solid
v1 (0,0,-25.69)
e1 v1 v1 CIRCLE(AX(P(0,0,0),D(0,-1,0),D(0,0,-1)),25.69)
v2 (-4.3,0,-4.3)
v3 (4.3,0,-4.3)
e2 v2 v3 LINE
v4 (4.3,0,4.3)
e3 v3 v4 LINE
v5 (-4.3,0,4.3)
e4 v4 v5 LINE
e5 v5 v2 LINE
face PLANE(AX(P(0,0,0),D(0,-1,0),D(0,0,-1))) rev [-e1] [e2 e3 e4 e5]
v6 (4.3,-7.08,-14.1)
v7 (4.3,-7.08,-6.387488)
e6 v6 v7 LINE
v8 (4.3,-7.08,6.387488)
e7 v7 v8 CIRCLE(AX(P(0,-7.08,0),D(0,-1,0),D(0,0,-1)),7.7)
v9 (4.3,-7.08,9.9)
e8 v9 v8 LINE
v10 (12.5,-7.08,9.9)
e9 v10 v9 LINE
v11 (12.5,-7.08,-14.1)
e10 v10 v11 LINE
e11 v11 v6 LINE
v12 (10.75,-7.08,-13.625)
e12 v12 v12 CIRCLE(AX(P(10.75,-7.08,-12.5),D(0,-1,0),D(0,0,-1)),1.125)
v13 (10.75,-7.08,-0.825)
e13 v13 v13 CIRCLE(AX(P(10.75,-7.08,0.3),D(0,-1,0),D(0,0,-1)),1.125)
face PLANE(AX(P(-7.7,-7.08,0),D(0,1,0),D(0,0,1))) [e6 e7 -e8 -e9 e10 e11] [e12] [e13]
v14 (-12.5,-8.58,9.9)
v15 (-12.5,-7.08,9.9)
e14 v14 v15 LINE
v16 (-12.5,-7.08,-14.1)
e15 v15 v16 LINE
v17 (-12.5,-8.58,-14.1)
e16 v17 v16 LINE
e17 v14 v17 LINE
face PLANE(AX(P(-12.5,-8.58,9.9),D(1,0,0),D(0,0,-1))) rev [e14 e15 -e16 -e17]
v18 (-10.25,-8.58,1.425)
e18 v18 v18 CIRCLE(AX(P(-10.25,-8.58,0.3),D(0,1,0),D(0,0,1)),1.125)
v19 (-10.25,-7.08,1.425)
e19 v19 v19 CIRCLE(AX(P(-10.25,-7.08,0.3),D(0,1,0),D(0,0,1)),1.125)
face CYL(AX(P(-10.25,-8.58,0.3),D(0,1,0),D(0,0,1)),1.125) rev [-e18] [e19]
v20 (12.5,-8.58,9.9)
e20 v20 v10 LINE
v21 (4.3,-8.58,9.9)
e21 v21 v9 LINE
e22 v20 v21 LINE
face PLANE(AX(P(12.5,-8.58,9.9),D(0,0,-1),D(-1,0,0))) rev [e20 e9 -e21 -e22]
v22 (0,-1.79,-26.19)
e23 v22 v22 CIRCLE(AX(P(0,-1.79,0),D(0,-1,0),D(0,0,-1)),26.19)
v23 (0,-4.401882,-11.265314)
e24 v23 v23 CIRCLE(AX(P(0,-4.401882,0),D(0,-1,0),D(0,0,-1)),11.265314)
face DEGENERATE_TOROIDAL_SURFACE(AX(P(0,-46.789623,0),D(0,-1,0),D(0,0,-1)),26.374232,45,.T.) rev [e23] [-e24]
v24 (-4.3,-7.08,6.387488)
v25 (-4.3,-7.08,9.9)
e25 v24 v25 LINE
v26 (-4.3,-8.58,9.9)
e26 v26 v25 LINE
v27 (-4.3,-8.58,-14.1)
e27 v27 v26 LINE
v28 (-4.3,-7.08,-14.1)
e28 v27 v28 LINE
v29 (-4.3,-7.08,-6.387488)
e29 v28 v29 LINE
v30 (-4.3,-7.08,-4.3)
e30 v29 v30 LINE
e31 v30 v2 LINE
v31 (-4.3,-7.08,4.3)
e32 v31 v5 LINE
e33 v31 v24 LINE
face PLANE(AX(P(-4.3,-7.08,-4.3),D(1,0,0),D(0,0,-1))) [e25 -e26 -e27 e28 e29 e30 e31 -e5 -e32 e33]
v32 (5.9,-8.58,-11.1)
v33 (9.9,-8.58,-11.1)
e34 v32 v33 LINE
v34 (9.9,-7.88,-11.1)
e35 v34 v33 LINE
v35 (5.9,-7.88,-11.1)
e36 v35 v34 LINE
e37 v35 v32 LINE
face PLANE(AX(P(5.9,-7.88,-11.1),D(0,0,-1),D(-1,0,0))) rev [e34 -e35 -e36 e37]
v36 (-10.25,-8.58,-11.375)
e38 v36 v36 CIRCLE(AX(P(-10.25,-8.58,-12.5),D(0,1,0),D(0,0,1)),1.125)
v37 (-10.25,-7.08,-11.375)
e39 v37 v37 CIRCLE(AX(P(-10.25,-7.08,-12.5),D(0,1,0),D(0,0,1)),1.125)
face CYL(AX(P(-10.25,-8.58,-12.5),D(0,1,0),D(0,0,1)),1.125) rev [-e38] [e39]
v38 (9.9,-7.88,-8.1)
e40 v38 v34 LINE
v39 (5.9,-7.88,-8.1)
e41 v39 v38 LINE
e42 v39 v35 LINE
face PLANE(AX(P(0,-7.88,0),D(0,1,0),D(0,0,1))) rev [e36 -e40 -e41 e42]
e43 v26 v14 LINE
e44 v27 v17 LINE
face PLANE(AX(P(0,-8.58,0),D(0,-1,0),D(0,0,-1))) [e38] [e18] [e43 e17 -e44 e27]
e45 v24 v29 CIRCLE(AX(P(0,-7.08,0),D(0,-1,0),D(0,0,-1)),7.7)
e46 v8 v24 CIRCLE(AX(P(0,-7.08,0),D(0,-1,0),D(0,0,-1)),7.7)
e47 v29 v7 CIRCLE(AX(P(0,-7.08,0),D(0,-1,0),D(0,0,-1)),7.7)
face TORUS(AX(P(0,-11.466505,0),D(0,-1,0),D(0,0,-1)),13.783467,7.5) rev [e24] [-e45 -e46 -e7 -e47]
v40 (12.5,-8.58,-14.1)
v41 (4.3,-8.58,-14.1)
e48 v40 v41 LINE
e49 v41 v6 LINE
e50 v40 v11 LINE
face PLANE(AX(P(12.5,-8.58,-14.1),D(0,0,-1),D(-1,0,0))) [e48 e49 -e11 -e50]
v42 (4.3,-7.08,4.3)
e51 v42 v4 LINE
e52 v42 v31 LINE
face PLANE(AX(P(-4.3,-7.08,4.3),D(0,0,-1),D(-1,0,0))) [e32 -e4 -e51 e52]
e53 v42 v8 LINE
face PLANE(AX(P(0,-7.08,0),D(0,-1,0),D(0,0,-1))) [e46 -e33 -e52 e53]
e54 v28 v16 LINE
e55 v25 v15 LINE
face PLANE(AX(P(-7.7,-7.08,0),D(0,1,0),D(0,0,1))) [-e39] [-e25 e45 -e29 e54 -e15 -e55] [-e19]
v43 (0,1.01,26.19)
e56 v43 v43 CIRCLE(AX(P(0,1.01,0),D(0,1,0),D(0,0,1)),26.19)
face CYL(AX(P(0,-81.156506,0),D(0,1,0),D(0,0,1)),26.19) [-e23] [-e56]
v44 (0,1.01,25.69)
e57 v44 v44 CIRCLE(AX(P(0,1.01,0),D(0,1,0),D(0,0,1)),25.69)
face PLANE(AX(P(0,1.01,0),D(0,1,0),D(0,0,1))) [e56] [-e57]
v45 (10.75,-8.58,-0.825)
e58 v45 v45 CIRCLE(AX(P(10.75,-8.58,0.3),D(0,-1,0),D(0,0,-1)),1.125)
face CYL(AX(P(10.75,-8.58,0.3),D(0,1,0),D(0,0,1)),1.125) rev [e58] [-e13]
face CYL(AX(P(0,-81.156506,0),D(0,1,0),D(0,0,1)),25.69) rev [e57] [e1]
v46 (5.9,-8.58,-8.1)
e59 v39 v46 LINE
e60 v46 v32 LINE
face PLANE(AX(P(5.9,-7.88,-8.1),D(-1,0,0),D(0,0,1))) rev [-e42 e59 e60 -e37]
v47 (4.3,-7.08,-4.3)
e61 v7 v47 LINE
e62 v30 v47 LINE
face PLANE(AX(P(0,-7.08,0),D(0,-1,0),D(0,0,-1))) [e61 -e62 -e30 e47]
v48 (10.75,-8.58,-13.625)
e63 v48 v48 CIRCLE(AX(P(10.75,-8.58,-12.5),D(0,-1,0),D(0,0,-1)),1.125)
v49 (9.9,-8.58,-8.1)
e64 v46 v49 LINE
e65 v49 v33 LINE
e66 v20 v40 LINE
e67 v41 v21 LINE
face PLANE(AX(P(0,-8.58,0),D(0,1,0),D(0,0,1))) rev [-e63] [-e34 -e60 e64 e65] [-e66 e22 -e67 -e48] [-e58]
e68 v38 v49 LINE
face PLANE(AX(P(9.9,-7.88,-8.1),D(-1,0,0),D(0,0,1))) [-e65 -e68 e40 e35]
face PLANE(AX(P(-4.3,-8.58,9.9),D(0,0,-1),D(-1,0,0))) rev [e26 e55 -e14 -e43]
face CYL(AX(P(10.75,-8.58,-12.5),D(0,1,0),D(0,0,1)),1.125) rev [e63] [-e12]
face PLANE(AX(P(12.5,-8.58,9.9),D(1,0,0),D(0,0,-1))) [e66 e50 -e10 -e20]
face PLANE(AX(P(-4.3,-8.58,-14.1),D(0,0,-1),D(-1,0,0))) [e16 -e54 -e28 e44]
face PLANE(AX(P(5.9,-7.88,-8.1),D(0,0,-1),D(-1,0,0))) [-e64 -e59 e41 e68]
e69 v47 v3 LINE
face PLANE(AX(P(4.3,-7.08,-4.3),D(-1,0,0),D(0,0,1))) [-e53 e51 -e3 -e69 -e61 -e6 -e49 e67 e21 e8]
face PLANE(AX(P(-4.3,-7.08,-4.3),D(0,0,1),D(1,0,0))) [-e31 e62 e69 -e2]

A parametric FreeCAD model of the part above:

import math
import FreeCAD as App
import Part
import Sketcher
Q = App.Units.Quantity

doc = App.newDocument("Part")
body = doc.addObject("PartDesign::Body", "Body")

sketch1 = body.newObject("Sketcher::SketchObject", "Sketch")
sketch1.AttachmentSupport = (doc.getObject("XZ_Plane"), [""])
sketch1.MapMode = "FlatFace"
sketch1.addGeometry([
    Part.Circle(App.Vector(0, 0, 0), App.Vector(0, 0, 1), 26),
    Part.LineSegment(App.Vector(4, -4, 0), App.Vector(-4, -4, 0)),
    Part.LineSegment(App.Vector(-4, -4, 0), App.Vector(-4, 4, 0)),
    Part.LineSegment(App.Vector(-4, 4, 0), App.Vector(4, 4, 0)),
    Part.LineSegment(App.Vector(4, 4, 0), App.Vector(4, -4, 0)),
], False)
sketch1.addConstraint([
    Sketcher.Constraint("Coincident", 1, 2, 2, 1),
    Sketcher.Constraint("Coincident", 2, 2, 3, 1),
    Sketcher.Constraint("Coincident", 3, 2, 4, 1),
    Sketcher.Constraint("Coincident", 4, 2, 1, 1),
    Sketcher.Constraint("Horizontal", 1),
    Sketcher.Constraint("Vertical", 2),
    Sketcher.Constraint("Horizontal", 3),
    Sketcher.Constraint("Vertical", 4),
    Sketcher.Constraint("Coincident", 0, 3, -1, 1),
    Sketcher.Constraint("Symmetric", 1, 2, 3, 2, -1, 1),
    Sketcher.Constraint("Equal", 3, 2),
    Sketcher.Constraint("Diameter", 0, Q("51.38 mm")),
    Sketcher.Constraint("DistanceX", 1, 2, 1, 1, Q("8.6 mm")),
])
pad1 = body.newObject("PartDesign::Pad", "Pad")
pad1.Profile = sketch1
pad1.Length = 7.08

sketch2 = body.newObject("Sketcher::SketchObject", "Sketch001")
sketch2.AttachmentSupport = (doc.getObject("XZ_Plane"), [""])
sketch2.MapMode = "FlatFace"
sketch2.AttachmentOffset = App.Placement(App.Vector(0, 0, 7.08), App.Rotation())
sketch2.addGeometry([
    Part.LineSegment(App.Vector(12.5, -14.1, 0), App.Vector(12.5, 9.9, 0)),
    Part.LineSegment(App.Vector(12.5, 9.9, 0), App.Vector(4.3, 9.9, 0)),
    Part.LineSegment(App.Vector(4.3, 9.9, 0), App.Vector(4.3, -14.1, 0)),
    Part.LineSegment(App.Vector(4.3, -14.1, 0), App.Vector(12.5, -14.1, 0)),
    Part.Circle(App.Vector(10.8, 0.3, 0), App.Vector(0, 0, 1), 1.1),
    Part.Circle(App.Vector(10.8, -12.5, 0), App.Vector(0, 0, 1), 1.1),
    Part.LineSegment(App.Vector(-4.3, -14.1, 0), App.Vector(-4.3, 9.9, 0)),
    Part.LineSegment(App.Vector(-4.3, 9.9, 0), App.Vector(-12.5, 9.9, 0)),
    Part.LineSegment(App.Vector(-12.5, 9.9, 0), App.Vector(-12.5, -14.1, 0)),
    Part.LineSegment(App.Vector(-12.5, -14.1, 0), App.Vector(-4.3, -14.1, 0)),
    Part.Circle(App.Vector(-10.2, 0.3, 0), App.Vector(0, 0, 1), 1.1),
    Part.Circle(App.Vector(-10.2, -12.5, 0), App.Vector(0, 0, 1), 1.1),
], False)
sketch2.addConstraint([
    Sketcher.Constraint("Coincident", 0, 2, 1, 1),
    Sketcher.Constraint("Coincident", 1, 2, 2, 1),
    Sketcher.Constraint("Coincident", 2, 2, 3, 1),
    Sketcher.Constraint("Coincident", 3, 2, 0, 1),
    Sketcher.Constraint("Coincident", 6, 2, 7, 1),
    Sketcher.Constraint("Coincident", 7, 2, 8, 1),
    Sketcher.Constraint("Coincident", 8, 2, 9, 1),
    Sketcher.Constraint("Coincident", 9, 2, 6, 1),
    Sketcher.Constraint("Vertical", 0),
    Sketcher.Constraint("Horizontal", 1),
    Sketcher.Constraint("Vertical", 2),
    Sketcher.Constraint("Horizontal", 3),
    Sketcher.Constraint("Vertical", 6),
    Sketcher.Constraint("Horizontal", 7),
    Sketcher.Constraint("Vertical", 8),
    Sketcher.Constraint("Horizontal", 9),
    Sketcher.Constraint("Equal", 4, 5),
    Sketcher.Constraint("Equal", 5, 10),
    Sketcher.Constraint("Equal", 10, 11),
    Sketcher.Constraint("Symmetric", 1, 2, 6, 2, -2),
    Sketcher.Constraint("Symmetric", 3, 2, 8, 2, -2),
    Sketcher.Constraint("Horizontal", 4, 3, 10, 3),
    Sketcher.Constraint("Horizontal", 5, 3, 11, 3),
    Sketcher.Constraint("Vertical", 4, 3, 5, 3),
    Sketcher.Constraint("Vertical", 10, 3, 11, 3),
    Sketcher.Constraint("Diameter", 4, Q("2.25 mm")),
    Sketcher.Constraint("DistanceY", 0, 1, 0, 2, Q("24 mm")),
    Sketcher.Constraint("DistanceX", 1, 2, 1, 1, Q("8.2 mm")),
    Sketcher.Constraint("DistanceX", 10, 3, 4, 3, Q("21 mm")),
    Sketcher.Constraint("DistanceX", 7, 2, 0, 2, Q("25 mm")),
    Sketcher.Constraint("DistanceY", -1, 1, 4, 3, Q("0.3 mm")),
    Sketcher.Constraint("DistanceY", 5, 3, -1, 1, Q("12.5 mm")),
    Sketcher.Constraint("DistanceY", -1, 1, 0, 2, Q("9.9 mm")),
    Sketcher.Constraint("DistanceX", -1, 1, 4, 3, Q("10.75 mm")),
])
pad2 = body.newObject("PartDesign::Pad", "Pad001")
pad2.Profile = sketch2
pad2.Length = 1.5

sketch3 = body.newObject("Sketcher::SketchObject", "Sketch002")
sketch3.AttachmentSupport = (doc.getObject("XZ_Plane"), [""])
sketch3.MapMode = "FlatFace"
sketch3.AttachmentOffset = App.Placement(App.Vector(0, 0, 7.08), App.Rotation())
sketch3.addGeometry([
    Part.Circle(App.Vector(0, 0, 0), App.Vector(0, 0, 1), 26),
    Part.Circle(App.Vector(0, 0, 0), App.Vector(0, 0, 1), 26),
], False)
sketch3.addConstraint([
    Sketcher.Constraint("Coincident", 0, 3, -1, 1),
    Sketcher.Constraint("Coincident", 1, 3, -1, 1),
    Sketcher.Constraint("Diameter", 0, Q("52.38 mm")),
    Sketcher.Constraint("Diameter", 1, Q("51.38 mm")),
])
pad3 = body.newObject("PartDesign::Pad", "Pad002")
pad3.Profile = sketch3
pad3.Length = 8.09
pad3.Reversed = True

sketch4 = body.newObject("Sketcher::SketchObject", "Sketch003")
sketch4.AttachmentSupport = (doc.getObject("XZ_Plane"), [""])
sketch4.MapMode = "FlatFace"
sketch4.AttachmentOffset = App.Placement(App.Vector(0, 0, 8.58), App.Rotation())
sketch4.addGeometry([
    Part.LineSegment(App.Vector(5.9, -8.1, 0), App.Vector(5.9, -11.1, 0)),
    Part.LineSegment(App.Vector(5.9, -11.1, 0), App.Vector(9.9, -11.1, 0)),
    Part.LineSegment(App.Vector(9.9, -11.1, 0), App.Vector(9.9, -8.1, 0)),
    Part.LineSegment(App.Vector(9.9, -8.1, 0), App.Vector(5.9, -8.1, 0)),
], False)
sketch4.addConstraint([
    Sketcher.Constraint("Coincident", 0, 2, 1, 1),
    Sketcher.Constraint("Coincident", 1, 2, 2, 1),
    Sketcher.Constraint("Coincident", 2, 2, 3, 1),
    Sketcher.Constraint("Coincident", 3, 2, 0, 1),
    Sketcher.Constraint("Vertical", 0),
    Sketcher.Constraint("Horizontal", 1),
    Sketcher.Constraint("Vertical", 2),
    Sketcher.Constraint("Horizontal", 3),
    Sketcher.Constraint("DistanceX", 1, 1, 1, 2, Q("4 mm")),
    Sketcher.Constraint("DistanceY", 0, 2, 0, 1, Q("3 mm")),
    Sketcher.Constraint("DistanceX", -1, 1, 0, 2, Q("5.9 mm")),
    Sketcher.Constraint("DistanceY", 0, 2, -1, 1, Q("11.1 mm")),
])
pocket1 = body.newObject("PartDesign::Pocket", "Pocket")
pocket1.Profile = sketch4
pocket1.Length = 0.7

sketch5 = body.newObject("Sketcher::SketchObject", "Sketch004")
sketch5.AttachmentSupport = (doc.getObject("XY_Plane"), [""])
sketch5.MapMode = "FlatFace"
sketch5.addGeometry([
    Part.LineSegment(App.Vector(-26.2, -7.1, 0), App.Vector(-7.7, -7.1, 0)),
    Part.ArcOfCircle(Part.Circle(App.Vector(-13.8, -11.5, 0), App.Vector(0, 0, 1), 7.5), math.radians(36), math.radians(70)),
    Part.ArcOfCircle(Part.Circle(App.Vector(-26.4, -46.8, 0), App.Vector(0, 0, 1), 45), math.radians(70.38), math.radians(89.77)),
    Part.LineSegment(App.Vector(-26.2, -1.8, 0), App.Vector(-26.2, -7.1, 0)),
], False)
sketch5.addConstraint([
    Sketcher.Constraint("Coincident", 0, 2, 1, 1),
    Sketcher.Constraint("Tangent", 1, 2, 2, 1),
    Sketcher.Constraint("Coincident", 2, 2, 3, 1),
    Sketcher.Constraint("Coincident", 3, 2, 0, 1),
    Sketcher.Constraint("Horizontal", 0),
    Sketcher.Constraint("Vertical", 3),
    Sketcher.Constraint("Radius", 2, Q("45 mm")),
    Sketcher.Constraint("Radius", 1, Q("7.5 mm")),
    Sketcher.Constraint("DistanceX", 0, 1, 0, 2, Q("18.49 mm")),
    Sketcher.Constraint("DistanceY", 3, 2, 3, 1, Q("5.29 mm")),
    Sketcher.Constraint("DistanceX", 0, 2, -1, 1, Q("7.7 mm")),
    Sketcher.Constraint("DistanceY", 0, 2, -1, 1, Q("7.08 mm")),
    Sketcher.Constraint("DistanceX", 2, 3, -1, 1, Q("26.374232 mm")),
])
groove = body.newObject("PartDesign::Groove", "Groove")
groove.Profile = sketch5
groove.ReferenceAxis = (sketch5, ["V_Axis"])
groove.Angle = 360

doc.recompute()
